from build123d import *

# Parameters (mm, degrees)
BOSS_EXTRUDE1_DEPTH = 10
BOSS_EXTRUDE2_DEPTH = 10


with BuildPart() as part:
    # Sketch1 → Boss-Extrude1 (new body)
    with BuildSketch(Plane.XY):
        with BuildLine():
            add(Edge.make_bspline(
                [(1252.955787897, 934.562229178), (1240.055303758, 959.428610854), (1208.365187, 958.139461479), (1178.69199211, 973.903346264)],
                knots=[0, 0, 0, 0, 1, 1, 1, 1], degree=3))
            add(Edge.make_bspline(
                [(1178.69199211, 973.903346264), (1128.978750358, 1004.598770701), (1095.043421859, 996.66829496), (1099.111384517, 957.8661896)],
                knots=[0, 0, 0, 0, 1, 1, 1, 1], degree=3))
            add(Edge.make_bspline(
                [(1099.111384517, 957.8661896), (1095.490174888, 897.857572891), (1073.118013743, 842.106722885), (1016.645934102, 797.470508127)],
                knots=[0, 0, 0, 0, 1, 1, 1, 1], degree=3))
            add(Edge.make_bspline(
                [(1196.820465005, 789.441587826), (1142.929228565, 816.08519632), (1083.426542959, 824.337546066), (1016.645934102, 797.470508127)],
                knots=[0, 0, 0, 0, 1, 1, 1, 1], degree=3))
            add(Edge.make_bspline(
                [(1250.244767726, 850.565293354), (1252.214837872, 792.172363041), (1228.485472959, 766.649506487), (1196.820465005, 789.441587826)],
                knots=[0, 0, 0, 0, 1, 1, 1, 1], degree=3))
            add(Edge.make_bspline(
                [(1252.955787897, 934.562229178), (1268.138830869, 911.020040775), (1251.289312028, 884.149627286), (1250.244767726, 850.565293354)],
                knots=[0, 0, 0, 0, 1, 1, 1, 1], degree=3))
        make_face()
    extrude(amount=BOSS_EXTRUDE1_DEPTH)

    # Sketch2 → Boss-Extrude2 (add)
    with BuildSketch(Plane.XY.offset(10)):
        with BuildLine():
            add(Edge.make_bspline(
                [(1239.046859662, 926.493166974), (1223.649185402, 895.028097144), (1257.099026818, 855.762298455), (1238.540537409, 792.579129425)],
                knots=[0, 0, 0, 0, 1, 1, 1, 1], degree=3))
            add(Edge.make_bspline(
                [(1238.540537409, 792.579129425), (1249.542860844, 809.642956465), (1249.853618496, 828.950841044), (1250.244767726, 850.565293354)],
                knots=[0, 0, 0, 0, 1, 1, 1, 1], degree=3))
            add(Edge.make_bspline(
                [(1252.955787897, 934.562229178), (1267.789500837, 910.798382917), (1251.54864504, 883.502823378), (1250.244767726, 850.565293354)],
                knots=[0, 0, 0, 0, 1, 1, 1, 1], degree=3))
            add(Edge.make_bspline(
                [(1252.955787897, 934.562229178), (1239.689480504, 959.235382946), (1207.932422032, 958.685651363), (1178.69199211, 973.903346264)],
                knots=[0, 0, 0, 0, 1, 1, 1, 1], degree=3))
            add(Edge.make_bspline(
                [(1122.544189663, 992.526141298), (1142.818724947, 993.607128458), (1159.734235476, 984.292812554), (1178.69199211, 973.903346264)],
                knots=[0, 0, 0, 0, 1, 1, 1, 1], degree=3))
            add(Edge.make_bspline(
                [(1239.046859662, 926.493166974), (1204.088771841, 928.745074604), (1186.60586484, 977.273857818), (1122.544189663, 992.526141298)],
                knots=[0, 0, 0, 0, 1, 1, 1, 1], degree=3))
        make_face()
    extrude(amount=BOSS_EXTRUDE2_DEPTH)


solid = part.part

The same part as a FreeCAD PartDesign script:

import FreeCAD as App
import Part
import Sketcher
from FreeCAD import Vector

doc = App.newDocument("Part")
params = doc.addObject("Spreadsheet::Sheet", "Params")
for row, (alias, value) in enumerate([
    ("pad1_length", "10 mm"),
    ("pad2_length", "10 mm"),
], start=1):
    params.set(f"A{row}", alias)
    params.set(f"B{row}", "=" + value)
    params.setAlias(f"B{row}", alias)

body = doc.addObject("PartDesign::Body", "Body")

sketch1 = body.newObject("Sketcher::SketchObject", "Sketch")
sketch1.AttachmentSupport = (doc.getObject("XY_Plane"), [""])
sketch1.MapMode = "FlatFace"
sketch1.addGeometry(Part.BSplineCurve([Vector(1252.955788, 934.562229, 0), Vector(1240.055304, 959.428611, 0), Vector(1208.365187, 958.139461, 0), Vector(1178.691992, 973.903346, 0)], [4, 4], [0, 1], False, 3, [1, 1, 1, 1], False), False)
sketch1.addGeometry(Part.BSplineCurve([Vector(1178.691992, 973.903346, 0), Vector(1128.97875, 1004.598771, 0), Vector(1095.043422, 996.668295, 0), Vector(1099.111385, 957.86619, 0)], [4, 4], [0, 1], False, 3, [1, 1, 1, 1], False), False)
sketch1.addGeometry(Part.BSplineCurve([Vector(1099.111385, 957.86619, 0), Vector(1095.490175, 897.857573, 0), Vector(1073.118014, 842.106723, 0), Vector(1016.645934, 797.470508, 0)], [4, 4], [0, 1], False, 3, [1, 1, 1, 1], False), False)
sketch1.addGeometry(Part.BSplineCurve([Vector(1196.820465, 789.441588, 0), Vector(1142.929229, 816.085196, 0), Vector(1083.426543, 824.337546, 0), Vector(1016.645934, 797.470508, 0)], [4, 4], [0, 1], False, 3, [1, 1, 1, 1], False), False)
sketch1.addGeometry(Part.BSplineCurve([Vector(1250.244768, 850.565293, 0), Vector(1252.214838, 792.172363, 0), Vector(1228.485473, 766.649506, 0), Vector(1196.820465, 789.441588, 0)], [4, 4], [0, 1], False, 3, [1, 1, 1, 1], False), False)
sketch1.addGeometry(Part.BSplineCurve([Vector(1252.955788, 934.562229, 0), Vector(1268.138831, 911.020041, 0), Vector(1251.289312, 884.149627, 0), Vector(1250.244768, 850.565293, 0)], [4, 4], [0, 1], False, 3, [1, 1, 1, 1], False), False)
sketch1.addConstraint(Sketcher.Constraint("Block", 0))
sketch1.addConstraint(Sketcher.Constraint("Block", 1))
sketch1.addConstraint(Sketcher.Constraint("Block", 2))
sketch1.addConstraint(Sketcher.Constraint("Block", 3))
sketch1.addConstraint(Sketcher.Constraint("Block", 4))
sketch1.addConstraint(Sketcher.Constraint("Block", 5))
pad1 = body.newObject("PartDesign::Pad", "Pad")
pad1.Profile = sketch1
pad1.setExpression("Length", "Params.pad1_length")

sketch2 = body.newObject("Sketcher::SketchObject", "Sketch001")
sketch2.AttachmentSupport = (doc.getObject("XY_Plane"), [""])
sketch2.MapMode = "FlatFace"
sketch2.AttachmentOffset = App.Placement(Vector(0, 0, 10), App.Rotation())
sketch2.addGeometry(Part.BSplineCurve([Vector(1239.04686, 926.493167, 0), Vector(1223.649185, 895.028097, 0), Vector(1257.099027, 855.762298, 0), Vector(1238.540537, 792.579129, 0)], [4, 4], [0, 1], False, 3, [1, 1, 1, 1], False), False)
sketch2.addGeometry(Part.BSplineCurve([Vector(1238.540537, 792.579129, 0), Vector(1249.542861, 809.642956, 0), Vector(1249.853618, 828.950841, 0), Vector(1250.244768, 850.565293, 0)], [4, 4], [0, 1], False, 3, [1, 1, 1, 1], False), False)
sketch2.addGeometry(Part.BSplineCurve([Vector(1252.955788, 934.562229, 0), Vector(1267.789501, 910.798383, 0), Vector(1251.548645, 883.502823, 0), Vector(1250.244768, 850.565293, 0)], [4, 4], [0, 1], False, 3, [1, 1, 1, 1], False), False)
sketch2.addGeometry(Part.BSplineCurve([Vector(1252.955788, 934.562229, 0), Vector(1239.689481, 959.235383, 0), Vector(1207.932422, 958.685651, 0), Vector(1178.691992, 973.903346, 0)], [4, 4], [0, 1], False, 3, [1, 1, 1, 1], False), False)
sketch2.addGeometry(Part.BSplineCurve([Vector(1122.54419, 992.526141, 0), Vector(1142.818725, 993.607128, 0), Vector(1159.734235, 984.292813, 0), Vector(1178.691992, 973.903346, 0)], [4, 4], [0, 1], False, 3, [1, 1, 1, 1], False), False)
sketch2.addGeometry(Part.BSplineCurve([Vector(1239.04686, 926.493167, 0), Vector(1204.088772, 928.745075, 0), Vector(1186.605865, 977.273858, 0), Vector(1122.54419, 992.526141, 0)], [4, 4], [0, 1], False, 3, [1, 1, 1, 1], False), False)
sketch2.addConstraint(Sketcher.Constraint("Block", 0))
sketch2.addConstraint(Sketcher.Constraint("Block", 1))
sketch2.addConstraint(Sketcher.Constraint("Block", 2))
sketch2.addConstraint(Sketcher.Constraint("Block", 3))
sketch2.addConstraint(Sketcher.Constraint("Block", 4))
sketch2.addConstraint(Sketcher.Constraint("Block", 5))
pad2 = body.newObject("PartDesign::Pad", "Pad001")
pad2.Profile = sketch2
pad2.setExpression("Length", "Params.pad2_length")

doc.recompute()
